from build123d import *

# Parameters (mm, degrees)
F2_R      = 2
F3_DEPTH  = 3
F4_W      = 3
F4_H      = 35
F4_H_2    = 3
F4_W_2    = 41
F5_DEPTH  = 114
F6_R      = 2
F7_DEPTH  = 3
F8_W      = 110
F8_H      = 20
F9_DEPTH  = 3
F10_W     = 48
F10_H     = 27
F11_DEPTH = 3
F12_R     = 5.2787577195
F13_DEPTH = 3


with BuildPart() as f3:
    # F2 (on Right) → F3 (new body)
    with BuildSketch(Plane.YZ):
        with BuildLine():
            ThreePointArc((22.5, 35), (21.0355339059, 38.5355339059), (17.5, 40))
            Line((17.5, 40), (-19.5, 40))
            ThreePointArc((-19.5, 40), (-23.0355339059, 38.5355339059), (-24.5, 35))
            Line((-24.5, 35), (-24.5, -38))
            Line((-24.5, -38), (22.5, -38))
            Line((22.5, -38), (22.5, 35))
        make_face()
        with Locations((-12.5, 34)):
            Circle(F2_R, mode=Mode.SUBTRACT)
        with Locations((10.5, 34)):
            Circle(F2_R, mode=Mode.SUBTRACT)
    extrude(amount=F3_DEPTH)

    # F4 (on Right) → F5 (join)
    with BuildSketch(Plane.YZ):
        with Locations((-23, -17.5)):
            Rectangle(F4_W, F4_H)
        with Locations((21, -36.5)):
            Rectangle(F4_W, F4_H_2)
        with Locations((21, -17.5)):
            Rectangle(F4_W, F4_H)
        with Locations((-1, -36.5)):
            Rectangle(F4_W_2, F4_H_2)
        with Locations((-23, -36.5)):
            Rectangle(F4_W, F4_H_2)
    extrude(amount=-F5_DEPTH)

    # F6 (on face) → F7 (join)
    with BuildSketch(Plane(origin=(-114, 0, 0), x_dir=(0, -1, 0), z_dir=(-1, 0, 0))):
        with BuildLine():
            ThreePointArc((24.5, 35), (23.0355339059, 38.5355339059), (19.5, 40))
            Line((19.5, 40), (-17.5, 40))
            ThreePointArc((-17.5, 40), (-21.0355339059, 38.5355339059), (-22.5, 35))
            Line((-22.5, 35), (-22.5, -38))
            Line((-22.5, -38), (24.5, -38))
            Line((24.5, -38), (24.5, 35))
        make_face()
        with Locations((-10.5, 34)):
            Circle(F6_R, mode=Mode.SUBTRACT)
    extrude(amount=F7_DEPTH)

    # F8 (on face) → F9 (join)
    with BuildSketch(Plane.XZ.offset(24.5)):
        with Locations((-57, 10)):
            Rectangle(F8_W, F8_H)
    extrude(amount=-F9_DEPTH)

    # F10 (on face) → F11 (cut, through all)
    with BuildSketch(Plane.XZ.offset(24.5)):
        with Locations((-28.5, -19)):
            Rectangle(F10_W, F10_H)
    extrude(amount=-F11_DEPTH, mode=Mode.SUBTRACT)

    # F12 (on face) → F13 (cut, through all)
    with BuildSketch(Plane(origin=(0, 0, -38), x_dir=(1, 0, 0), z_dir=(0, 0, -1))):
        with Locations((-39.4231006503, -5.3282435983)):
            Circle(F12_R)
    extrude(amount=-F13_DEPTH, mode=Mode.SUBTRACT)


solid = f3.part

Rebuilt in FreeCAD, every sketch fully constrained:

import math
import FreeCAD as App
import Part
import Sketcher

V = App.Vector

doc = App.newDocument("Part")
body = doc.addObject("PartDesign::Body", "Body")

# Sketch on YZ plane
sketch1 = doc.addObject("Sketcher::SketchObject", "Sketch")
body.addObject(sketch1)
sketch1.AttachmentSupport = (doc.YZ_Plane, [""])
sketch1.MapMode = "FlatFace"
sketch1.addGeometry([
    Part.ArcOfCircle(Part.Circle(V(17.5, 35, 0), V(0, 0, 1), 5), math.radians(0), math.radians(90)),  # 0
    Part.LineSegment(V(17.5, 40, 0), V(-19.5, 40, 0)),  # 1
    Part.ArcOfCircle(Part.Circle(V(-19.5, 35, 0), V(0, 0, 1), 5), math.radians(90), math.radians(180)),  # 2
    Part.LineSegment(V(-24.5, 35, 0), V(-24.5, -38, 0)),  # 3
    Part.LineSegment(V(-24.5, -38, 0), V(22.5, -38, 0)),  # 4
    Part.LineSegment(V(22.5, -38, 0), V(22.5, 35, 0)),  # 5
    Part.Circle(V(-12.5, 34, 0), V(0, 0, 1), 2),  # 6
    Part.Circle(V(10.5, 34, 0), V(0, 0, 1), 2),  # 7
], False)
sketch1.addConstraint([
    Sketcher.Constraint("Tangent", 0, 2, 1, 1),
    Sketcher.Constraint("Tangent", 1, 2, 2, 1),
    Sketcher.Constraint("Tangent", 2, 2, 3, 1),
    Sketcher.Constraint("Coincident", 3, 2, 4, 1),
    Sketcher.Constraint("Coincident", 4, 2, 5, 1),
    Sketcher.Constraint("Tangent", 5, 2, 0, 1),
    Sketcher.Constraint("Horizontal", 1),
    Sketcher.Constraint("Vertical", 3),
    Sketcher.Constraint("Horizontal", 4),
    Sketcher.Constraint("Vertical", 5),
    Sketcher.Constraint("Equal", 0, 2),
    Sketcher.Constraint("Equal", 6, 7),
    Sketcher.Constraint("Horizontal", 6, 3, 7, 3),
    Sketcher.Constraint("Diameter", 6, 4.0),
    Sketcher.Constraint("Radius", 0, 5.0),
    Sketcher.Constraint("DistanceX", 1, 2, 1, 1, 37.0),
    Sketcher.Constraint("DistanceY", 3, 2, 3, 1, 73.0),
    Sketcher.Constraint("DistanceY", -1, 1, 0, 3, 35.0),
    Sketcher.Constraint("DistanceY", -1, 1, 6, 3, 34.0),
    Sketcher.Constraint("DistanceX", 2, 3, 6, 3, 7.0),
    Sketcher.Constraint("DistanceX", 7, 3, 0, 3, 7.0),
    Sketcher.Constraint("DistanceX", -1, 1, 0, 3, 17.5),
])
pad1 = doc.addObject("PartDesign::Pad", "Pad")
body.addObject(pad1)
pad1.Profile = sketch1
pad1.Length = 3

# Sketch on YZ plane
sketch2 = doc.addObject("Sketcher::SketchObject", "Sketch001")
body.addObject(sketch2)
sketch2.AttachmentSupport = (doc.YZ_Plane, [""])
sketch2.MapMode = "FlatFace"
sketch2.addGeometry([
    Part.LineSegment(V(-24.5, 0, 0), V(-24.5, -38, 0)),  # 0
    Part.LineSegment(V(-24.5, -38, 0), V(22.5, -38, 0)),  # 1
    Part.LineSegment(V(22.5, -38, 0), V(22.5, 0, 0)),  # 2
    Part.LineSegment(V(22.5, 0, 0), V(19.5, 0, 0)),  # 3
    Part.LineSegment(V(19.5, 0, 0), V(19.5, -35, 0)),  # 4
    Part.LineSegment(V(19.5, -35, 0), V(-21.5, -35, 0)),  # 5
    Part.LineSegment(V(-21.5, -35, 0), V(-21.5, 0, 0)),  # 6
    Part.LineSegment(V(-21.5, 0, 0), V(-24.5, 0, 0)),  # 7
], False)
sketch2.addConstraint([
    Sketcher.Constraint("Coincident", 0, 2, 1, 1),
    Sketcher.Constraint("Coincident", 1, 2, 2, 1),
    Sketcher.Constraint("Coincident", 2, 2, 3, 1),
    Sketcher.Constraint("Coincident", 3, 2, 4, 1),
    Sketcher.Constraint("Coincident", 4, 2, 5, 1),
    Sketcher.Constraint("Coincident", 5, 2, 6, 1),
    Sketcher.Constraint("Coincident", 6, 2, 7, 1),
    Sketcher.Constraint("Coincident", 7, 2, 0, 1),
    Sketcher.Constraint("Vertical", 0),
    Sketcher.Constraint("Horizontal", 1),
    Sketcher.Constraint("Vertical", 2),
    Sketcher.Constraint("Horizontal", 3),
    Sketcher.Constraint("Vertical", 4),
    Sketcher.Constraint("Horizontal", 5),
    Sketcher.Constraint("Vertical", 6),
    Sketcher.Constraint("Horizontal", 7),
    Sketcher.Constraint("PointOnObject", 2, 2, -1),
    Sketcher.Constraint("PointOnObject", 6, 2, -1),
    Sketcher.Constraint("Equal", 3, 7),
    Sketcher.Constraint("DistanceX", 1, 1, 1, 2, 47.0),
    Sketcher.Constraint("DistanceX", 3, 2, 3, 1, 3.0),
    Sketcher.Constraint("DistanceY", 0, 2, 0, 1, 38.0),
    Sketcher.Constraint("DistanceY", 4, 2, 4, 1, 35.0),
    Sketcher.Constraint("DistanceX", 0, 2, -1, 1, 24.5),
])
pad2 = doc.addObject("PartDesign::Pad", "Pad001")
body.addObject(pad2)
pad2.Profile = sketch2
pad2.Length = 114
pad2.Reversed = True

# Sketch on YZ plane
sketch3 = doc.addObject("Sketcher::SketchObject", "Sketch002")
body.addObject(sketch3)
sketch3.AttachmentSupport = (doc.YZ_Plane, [""])
sketch3.MapMode = "FlatFace"
sketch3.AttachmentOffset = App.Placement(V(0, 0, -114), App.Rotation())
sketch3.addGeometry([
    Part.ArcOfCircle(Part.Circle(V(-19.5, 35, 0), V(0, 0, 1), 5), math.radians(90), math.radians(180)),  # 0
    Part.LineSegment(V(-19.5, 40, 0), V(17.5, 40, 0)),  # 1
    Part.ArcOfCircle(Part.Circle(V(17.5, 35, 0), V(0, 0, 1), 5), math.radians(0), math.radians(90)),  # 2
    Part.LineSegment(V(22.5, 35, 0), V(22.5, -38, 0)),  # 3
    Part.LineSegment(V(22.5, -38, 0), V(-24.5, -38, 0)),  # 4
    Part.LineSegment(V(-24.5, -38, 0), V(-24.5, 35, 0)),  # 5
    Part.Circle(V(10.5, 34, 0), V(0, 0, 1), 2),  # 6
], False)
sketch3.addConstraint([
    Sketcher.Constraint("Tangent", 0, 1, 1, 1),
    Sketcher.Constraint("Tangent", 1, 2, 2, 2),
    Sketcher.Constraint("Tangent", 2, 1, 3, 1),
    Sketcher.Constraint("Coincident", 3, 2, 4, 1),
    Sketcher.Constraint("Coincident", 4, 2, 5, 1),
    Sketcher.Constraint("Tangent", 5, 2, 0, 2),
    Sketcher.Constraint("Horizontal", 1),
    Sketcher.Constraint("Vertical", 3),
    Sketcher.Constraint("Horizontal", 4),
    Sketcher.Constraint("Vertical", 5),
    Sketcher.Constraint("Equal", 0, 2),
    Sketcher.Constraint("Diameter", 6, 4.0),
    Sketcher.Constraint("Radius", 0, 5.0),
    Sketcher.Constraint("DistanceX", 1, 1, 1, 2, 37.0),
    Sketcher.Constraint("DistanceY", 3, 2, 3, 1, 73.0),
    Sketcher.Constraint("DistanceY", -1, 1, 0, 3, 35.0),
    Sketcher.Constraint("DistanceY", -1, 1, 6, 3, 34.0),
    Sketcher.Constraint("DistanceX", 6, 3, 2, 3, 7.0),
    Sketcher.Constraint("DistanceX", 0, 3, -1, 1, 19.5),
])
pad3 = doc.addObject("PartDesign::Pad", "Pad002")
body.addObject(pad3)
pad3.Profile = sketch3
pad3.Length = 3
pad3.Reversed = True

# Sketch on XZ plane
sketch4 = doc.addObject("Sketcher::SketchObject", "Sketch003")
body.addObject(sketch4)
sketch4.AttachmentSupport = (doc.XZ_Plane, [""])
sketch4.MapMode = "FlatFace"
sketch4.AttachmentOffset = App.Placement(V(0, 0, 24.5), App.Rotation())
sketch4.addGeometry([
    Part.LineSegment(V(-112, 20, 0), V(-112, 0, 0)),
    Part.LineSegment(V(-112, 0, 0), V(-2, 0, 0)),
    Part.LineSegment(V(-2, 0, 0), V(-2, 20, 0)),
    Part.LineSegment(V(-2, 20, 0), V(-112, 20, 0)),
], False)
sketch4.addConstraint([
    Sketcher.Constraint("Coincident", 0, 2, 1, 1),
    Sketcher.Constraint("Coincident", 1, 2, 2, 1),
    Sketcher.Constraint("Coincident", 2, 2, 3, 1),
    Sketcher.Constraint("Coincident", 3, 2, 0, 1),
    Sketcher.Constraint("Vertical", 0),
    Sketcher.Constraint("Horizontal", 1),
    Sketcher.Constraint("Vertical", 2),
    Sketcher.Constraint("Horizontal", 3),
    Sketcher.Constraint("PointOnObject", 0, 2, -1),
    Sketcher.Constraint("DistanceX", 1, 1, 1, 2, 110.0),
    Sketcher.Constraint("DistanceY", 0, 2, 0, 1, 20.0),
    Sketcher.Constraint("DistanceX", 0, 2, -1, 1, 112.0),
])
pad4 = doc.addObject("PartDesign::Pad", "Pad003")
body.addObject(pad4)
pad4.Profile = sketch4
pad4.Length = 3
pad4.Reversed = True

# Sketch on XZ plane
sketch5 = doc.addObject("Sketcher::SketchObject", "Sketch004")
body.addObject(sketch5)
sketch5.AttachmentSupport = (doc.XZ_Plane, [""])
sketch5.MapMode = "FlatFace"
sketch5.AttachmentOffset = App.Placement(V(0, 0, 24.5), App.Rotation())
sketch5.addGeometry([
    Part.LineSegment(V(-52, -6, 0), V(-52, -32, 0)),
    Part.LineSegment(V(-52, -32, 0), V(-4, -32, 0)),
    Part.LineSegment(V(-4, -32, 0), V(-4, -6, 0)),
    Part.LineSegment(V(-4, -6, 0), V(-52, -6, 0)),
], False)
sketch5.addConstraint([
    Sketcher.Constraint("Coincident", 0, 2, 1, 1),
    Sketcher.Constraint("Coincident", 1, 2, 2, 1),
    Sketcher.Constraint("Coincident", 2, 2, 3, 1),
    Sketcher.Constraint("Coincident", 3, 2, 0, 1),
    Sketcher.Constraint("Vertical", 0),
    Sketcher.Constraint("Horizontal", 1),
    Sketcher.Constraint("Vertical", 2),
    Sketcher.Constraint("Horizontal", 3),
    Sketcher.Constraint("DistanceX", 1, 1, 1, 2, 48.0),
    Sketcher.Constraint("DistanceY", 0, 2, 0, 1, 27.0),
    Sketcher.Constraint("DistanceX", 0, 2, -1, 1, 52.5),
    Sketcher.Constraint("DistanceY", 0, 2, -1, 1, 32.5),
])
pocket1 = doc.addObject("PartDesign::Pocket", "Pocket")
body.addObject(pocket1)
pocket1.Profile = sketch5
pocket1.Length = 3

# Sketch on XY plane
sketch6 = doc.addObject("Sketcher::SketchObject", "Sketch005")
body.addObject(sketch6)
sketch6.AttachmentSupport = (doc.XY_Plane, [""])
sketch6.MapMode = "FlatFace"
sketch6.AttachmentOffset = App.Placement(V(0, 0, -38), App.Rotation())
sketch6.addGeometry(Part.Circle(V(-39, 5, 0), V(0, 0, 1), 5), False)
sketch6.addConstraint([
    Sketcher.Constraint("Diameter", 0, 10.557515),
    Sketcher.Constraint("DistanceX", 0, 3, -1, 1, 39.423101),
    Sketcher.Constraint("DistanceY", -1, 1, 0, 3, 5.328244),
])
pocket2 = doc.addObject("PartDesign::Pocket", "Pocket001")
body.addObject(pocket2)
pocket2.Profile = sketch6
pocket2.Type = "ThroughAll"
pocket2.Reversed = True

doc.recompute()
